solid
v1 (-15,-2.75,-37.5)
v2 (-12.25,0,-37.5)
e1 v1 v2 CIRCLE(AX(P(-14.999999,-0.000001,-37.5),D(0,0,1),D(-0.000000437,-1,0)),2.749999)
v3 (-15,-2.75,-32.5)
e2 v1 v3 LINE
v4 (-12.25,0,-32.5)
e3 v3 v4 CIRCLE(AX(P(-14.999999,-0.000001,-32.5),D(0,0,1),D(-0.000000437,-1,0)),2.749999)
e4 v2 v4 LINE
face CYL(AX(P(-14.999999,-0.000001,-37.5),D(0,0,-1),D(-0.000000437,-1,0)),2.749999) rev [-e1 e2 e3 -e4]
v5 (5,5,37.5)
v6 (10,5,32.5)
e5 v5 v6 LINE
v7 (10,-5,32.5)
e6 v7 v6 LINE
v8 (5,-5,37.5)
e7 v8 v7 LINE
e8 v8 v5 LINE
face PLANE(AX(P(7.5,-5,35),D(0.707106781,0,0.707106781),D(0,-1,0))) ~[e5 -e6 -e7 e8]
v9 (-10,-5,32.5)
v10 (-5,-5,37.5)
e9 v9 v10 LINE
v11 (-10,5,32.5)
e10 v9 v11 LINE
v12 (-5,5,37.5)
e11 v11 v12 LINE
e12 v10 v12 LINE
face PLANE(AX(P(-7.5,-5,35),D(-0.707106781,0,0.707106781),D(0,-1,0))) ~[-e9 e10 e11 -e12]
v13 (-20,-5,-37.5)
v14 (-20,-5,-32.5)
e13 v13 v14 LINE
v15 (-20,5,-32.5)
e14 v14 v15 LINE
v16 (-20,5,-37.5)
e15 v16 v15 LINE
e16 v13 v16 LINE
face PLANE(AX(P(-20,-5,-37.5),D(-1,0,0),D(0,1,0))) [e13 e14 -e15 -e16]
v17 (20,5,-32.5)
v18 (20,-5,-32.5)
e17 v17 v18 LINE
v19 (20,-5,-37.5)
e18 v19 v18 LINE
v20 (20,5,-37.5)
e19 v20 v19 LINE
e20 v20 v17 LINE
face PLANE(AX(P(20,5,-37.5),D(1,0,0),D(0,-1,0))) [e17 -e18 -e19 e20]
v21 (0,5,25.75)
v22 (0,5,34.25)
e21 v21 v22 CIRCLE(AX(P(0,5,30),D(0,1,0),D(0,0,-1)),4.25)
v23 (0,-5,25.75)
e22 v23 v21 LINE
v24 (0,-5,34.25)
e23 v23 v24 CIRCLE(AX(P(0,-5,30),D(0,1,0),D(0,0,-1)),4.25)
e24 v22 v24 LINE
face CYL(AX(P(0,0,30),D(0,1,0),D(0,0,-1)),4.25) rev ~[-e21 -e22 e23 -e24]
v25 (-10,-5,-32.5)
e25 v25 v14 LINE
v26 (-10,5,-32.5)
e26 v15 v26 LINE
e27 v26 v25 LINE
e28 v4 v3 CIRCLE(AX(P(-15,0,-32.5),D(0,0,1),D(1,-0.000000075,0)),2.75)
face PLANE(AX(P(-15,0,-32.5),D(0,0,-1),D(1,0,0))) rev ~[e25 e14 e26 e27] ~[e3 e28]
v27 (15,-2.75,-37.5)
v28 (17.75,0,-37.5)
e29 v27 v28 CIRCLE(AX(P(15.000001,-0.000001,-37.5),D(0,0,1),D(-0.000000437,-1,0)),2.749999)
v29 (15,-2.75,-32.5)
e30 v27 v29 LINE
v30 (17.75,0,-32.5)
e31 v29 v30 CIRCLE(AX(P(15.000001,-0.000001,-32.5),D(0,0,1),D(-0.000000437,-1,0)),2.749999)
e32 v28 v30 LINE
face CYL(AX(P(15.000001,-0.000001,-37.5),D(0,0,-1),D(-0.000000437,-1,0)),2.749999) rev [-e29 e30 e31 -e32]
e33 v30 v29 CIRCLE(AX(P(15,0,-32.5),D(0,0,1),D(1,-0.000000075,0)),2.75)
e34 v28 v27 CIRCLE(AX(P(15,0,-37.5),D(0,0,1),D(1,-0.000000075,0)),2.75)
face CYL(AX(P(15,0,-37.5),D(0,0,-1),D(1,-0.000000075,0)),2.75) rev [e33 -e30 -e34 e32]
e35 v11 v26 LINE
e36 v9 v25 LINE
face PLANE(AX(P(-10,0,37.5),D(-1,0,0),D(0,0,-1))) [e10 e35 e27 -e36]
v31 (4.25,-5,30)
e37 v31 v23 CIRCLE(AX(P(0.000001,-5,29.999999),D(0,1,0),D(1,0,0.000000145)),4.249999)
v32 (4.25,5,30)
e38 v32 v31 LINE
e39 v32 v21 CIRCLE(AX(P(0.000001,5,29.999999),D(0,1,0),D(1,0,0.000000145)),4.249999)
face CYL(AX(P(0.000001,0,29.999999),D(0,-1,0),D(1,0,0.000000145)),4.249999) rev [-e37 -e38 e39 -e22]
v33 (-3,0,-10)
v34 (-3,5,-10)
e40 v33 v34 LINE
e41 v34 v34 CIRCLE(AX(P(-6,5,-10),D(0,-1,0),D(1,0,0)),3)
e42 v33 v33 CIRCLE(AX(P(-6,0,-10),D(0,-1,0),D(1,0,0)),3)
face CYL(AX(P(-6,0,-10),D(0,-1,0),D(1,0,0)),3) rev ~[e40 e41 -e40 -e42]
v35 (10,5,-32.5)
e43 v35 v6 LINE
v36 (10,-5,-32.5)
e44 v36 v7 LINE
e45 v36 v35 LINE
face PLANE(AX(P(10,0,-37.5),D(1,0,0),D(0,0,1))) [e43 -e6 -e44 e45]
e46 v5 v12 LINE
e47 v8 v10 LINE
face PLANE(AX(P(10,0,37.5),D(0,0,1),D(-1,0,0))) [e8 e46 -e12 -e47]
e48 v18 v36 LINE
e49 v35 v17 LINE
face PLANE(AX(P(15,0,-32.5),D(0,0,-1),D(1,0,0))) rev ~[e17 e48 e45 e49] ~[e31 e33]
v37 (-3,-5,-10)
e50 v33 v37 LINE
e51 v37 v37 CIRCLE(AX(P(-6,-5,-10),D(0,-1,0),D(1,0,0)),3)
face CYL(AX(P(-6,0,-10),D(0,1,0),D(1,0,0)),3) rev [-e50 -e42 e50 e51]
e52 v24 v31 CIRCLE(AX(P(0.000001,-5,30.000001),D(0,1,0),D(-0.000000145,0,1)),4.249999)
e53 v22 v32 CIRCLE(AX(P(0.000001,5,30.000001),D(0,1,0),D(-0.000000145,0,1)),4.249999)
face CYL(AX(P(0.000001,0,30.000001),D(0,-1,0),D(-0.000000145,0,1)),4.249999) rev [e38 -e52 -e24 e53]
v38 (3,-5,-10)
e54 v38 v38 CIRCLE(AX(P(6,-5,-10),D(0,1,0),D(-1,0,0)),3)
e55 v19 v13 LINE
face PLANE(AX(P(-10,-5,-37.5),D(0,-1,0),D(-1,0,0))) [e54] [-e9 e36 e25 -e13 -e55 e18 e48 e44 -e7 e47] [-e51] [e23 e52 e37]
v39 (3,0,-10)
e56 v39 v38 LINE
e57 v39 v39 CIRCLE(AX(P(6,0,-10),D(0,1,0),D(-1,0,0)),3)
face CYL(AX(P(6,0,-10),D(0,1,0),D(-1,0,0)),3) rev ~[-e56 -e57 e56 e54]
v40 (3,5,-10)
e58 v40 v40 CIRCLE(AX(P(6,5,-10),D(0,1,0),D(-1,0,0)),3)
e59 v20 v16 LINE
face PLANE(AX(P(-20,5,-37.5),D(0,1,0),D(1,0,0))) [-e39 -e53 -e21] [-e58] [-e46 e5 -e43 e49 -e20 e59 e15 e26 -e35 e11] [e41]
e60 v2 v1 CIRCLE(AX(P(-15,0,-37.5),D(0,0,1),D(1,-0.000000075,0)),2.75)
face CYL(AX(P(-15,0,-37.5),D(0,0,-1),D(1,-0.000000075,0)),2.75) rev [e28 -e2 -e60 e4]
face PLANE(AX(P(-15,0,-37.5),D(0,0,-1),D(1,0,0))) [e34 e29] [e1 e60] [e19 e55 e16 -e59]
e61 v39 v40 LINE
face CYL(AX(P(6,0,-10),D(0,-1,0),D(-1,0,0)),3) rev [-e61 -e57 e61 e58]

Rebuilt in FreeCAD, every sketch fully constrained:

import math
import FreeCAD as App
import Part
import Sketcher

V = App.Vector


def edges_at(feature, points):
    """Names of the edges that pass closest to the given points."""
    edges = feature.Shape.Edges
    near = lambda p: min(range(len(edges)), key=lambda i: edges[i].distToShape(Part.Vertex(*p))[0])
    return sorted({f"Edge{near(p) + 1}" for p in points})


def add_polygon(sketch, points):
    """Adds a closed chain of lines whose ends are joined by coincident constraints."""
    first, n = sketch.GeometryCount, len(points)
    for a, b in zip(points, points[1:] + points[:1]):
        sketch.addGeometry(Part.LineSegment(App.Vector(*a, 0), App.Vector(*b, 0)), False)
    for i in range(n):
        sketch.addConstraint(Sketcher.Constraint("Coincident", first + i, 2, first + (i + 1) % n, 1))

doc = App.newDocument("Part")
body = doc.addObject("PartDesign::Body", "Body")

# Sketch on XZ plane
sketch1 = body.newObject("Sketcher::SketchObject", "Sketch")
sketch1.AttachmentSupport = (doc.getObject("XZ_Plane"), [""])
sketch1.MapMode = "FlatFace"
add_polygon(sketch1, [(-10, 37.5), (-10, -37.5), (10, -37.5), (10, 37.5)])  # lines 0-3
sketch1.addGeometry(Part.Circle(V(-6, -10, 0), V(0, 0, 1), 3), False)  # 4
sketch1.addGeometry(Part.Circle(V(6, -10, 0), V(0, 0, 1), 3), False)  # 5
sketch1.addGeometry(Part.ArcOfCircle(Part.Circle(V(0.000001, 29.999999, 0), V(0, 0, 1), 4.249999), math.radians(-90.000008), math.radians(0.000008)), False)  # 6
sketch1.addGeometry(Part.ArcOfCircle(Part.Circle(V(0, 30, 0), V(0, 0, 1), 4.25), math.radians(90), math.radians(270)), False)  # 7
sketch1.addGeometry(Part.ArcOfCircle(Part.Circle(V(0.000001, 30.000001, 0), V(0, 0, 1), 4.249999), math.radians(-0.000008), math.radians(90.000008)), False)  # 8
sketch1.addConstraint([
    Sketcher.Constraint("Tangent", 6, 1, 7, 2),
    Sketcher.Constraint("Tangent", 7, 1, 8, 2),
    Sketcher.Constraint("Tangent", 8, 1, 6, 2),
    Sketcher.Constraint("Vertical", 0),
    Sketcher.Constraint("Horizontal", 1),
    Sketcher.Constraint("Vertical", 2),
    Sketcher.Constraint("Horizontal", 3),
    Sketcher.Constraint("Equal", 4, 5),
    Sketcher.Constraint("Symmetric", 0, 2, 2, 2, -1, 1),
    Sketcher.Constraint("Symmetric", 4, 3, 5, 3, -2),
    Sketcher.Constraint("PointOnObject", 6, 3, -2),
    Sketcher.Constraint("PointOnObject", 6, 1, -2),
    Sketcher.Constraint("PointOnObject", 7, 1, -2),
    Sketcher.Constraint("Horizontal", 7, 3, 8, 1),
    Sketcher.Constraint("Diameter", 4, 6.0),
    Sketcher.Constraint("DistanceX", 1, 1, 1, 2, 20.0),
    Sketcher.Constraint("DistanceY", 0, 2, 0, 1, 75.0),
    Sketcher.Constraint("Radius", 6, 4.249999),
    Sketcher.Constraint("DistanceX", 4, 3, -1, 1, 6.0),
    Sketcher.Constraint("DistanceY", 4, 3, -1, 1, 10.0),
    Sketcher.Constraint("DistanceY", -1, 1, 6, 3, 29.999999),
])
pad1 = body.newObject("PartDesign::Pad", "Pad")
pad1.Profile = sketch1
pad1.Length = 10
pad1.Midplane = True
doc.recompute()

chamfer = body.newObject("PartDesign::Chamfer", "Chamfer")
chamfer.Base = (pad1, edges_at(pad1, [(-10, 0, 37.5), (10, 0, 37.5)]))
chamfer.Size = 5

# Sketch on XY plane
sketch2 = body.newObject("Sketcher::SketchObject", "Sketch001")
sketch2.AttachmentSupport = (doc.getObject("XY_Plane"), [""])
sketch2.MapMode = "FlatFace"
sketch2.AttachmentOffset = App.Placement(V(0, 0, -37.5), App.Rotation())
add_polygon(sketch2, [(-10, 5), (-10, -5), (-20, -5), (-20, 5)])  # lines 0-3
sketch2.addGeometry(Part.ArcOfCircle(Part.Circle(V(-14.999999, -0.000001, 0), V(0, 0, 1), 2.749999), math.radians(-90.000025), math.radians(0.000025)), False)  # 4
sketch2.addGeometry(Part.ArcOfCircle(Part.Circle(V(-15, 0, 0), V(0, 0, 1), 2.75), math.radians(-0.000004), math.radians(270.000004)), False)  # 5
add_polygon(sketch2, [(10, -5), (10, 5), (20, 5), (20, -5)])  # lines 6-9
sketch2.addGeometry(Part.ArcOfCircle(Part.Circle(V(15.000001, -0.000001, 0), V(0, 0, 1), 2.749999), math.radians(-90.000025), math.radians(0.000025)), False)  # 10
sketch2.addGeometry(Part.ArcOfCircle(Part.Circle(V(15, 0, 0), V(0, 0, 1), 2.75), math.radians(-0.000004), math.radians(270.000004)), False)  # 11
sketch2.addConstraint([
    Sketcher.Constraint("Tangent", 4, 1, 5, 2),
    Sketcher.Constraint("Coincident", 5, 1, 4, 2),
    Sketcher.Constraint("Tangent", 10, 1, 11, 2),
    Sketcher.Constraint("Coincident", 11, 1, 10, 2),
    Sketcher.Constraint("Vertical", 0),
    Sketcher.Constraint("Horizontal", 1),
    Sketcher.Constraint("Vertical", 2),
    Sketcher.Constraint("Horizontal", 3),
    Sketcher.Constraint("Vertical", 6),
    Sketcher.Constraint("Horizontal", 7),
    Sketcher.Constraint("Vertical", 8),
    Sketcher.Constraint("Horizontal", 9),
    Sketcher.Constraint("Equal", 5, 10),
    Sketcher.Constraint("Symmetric", 4, 3, 10, 3, -1, 1),
    Sketcher.Constraint("Symmetric", 0, 2, 6, 2, -1, 1),
    Sketcher.Constraint("Symmetric", 2, 2, 8, 2, -1, 1),
    Sketcher.Constraint("Symmetric", 4, 1, 10, 1, -2),
    Sketcher.Constraint("PointOnObject", 5, 1, -1),
    Sketcher.Constraint("PointOnObject", 11, 1, -1),
    Sketcher.Constraint("Horizontal", 3, 2, 6, 2),
    Sketcher.Constraint("Vertical", 5, 3, 4, 1),
    Sketcher.Constraint("Equal", 9, 0),
    Sketcher.Constraint("DistanceX", 1, 2, 1, 1, 10.0),
    Sketcher.Constraint("Radius", 4, 2.749999),
    Sketcher.Constraint("DistanceX", 4, 3, -1, 1, 14.999999),
    Sketcher.Constraint("DistanceX", 0, 2, -1, 1, 10.0),
])
pad2 = body.newObject("PartDesign::Pad", "Pad001")
pad2.Profile = sketch2
pad2.Length = 5

doc.recompute()
